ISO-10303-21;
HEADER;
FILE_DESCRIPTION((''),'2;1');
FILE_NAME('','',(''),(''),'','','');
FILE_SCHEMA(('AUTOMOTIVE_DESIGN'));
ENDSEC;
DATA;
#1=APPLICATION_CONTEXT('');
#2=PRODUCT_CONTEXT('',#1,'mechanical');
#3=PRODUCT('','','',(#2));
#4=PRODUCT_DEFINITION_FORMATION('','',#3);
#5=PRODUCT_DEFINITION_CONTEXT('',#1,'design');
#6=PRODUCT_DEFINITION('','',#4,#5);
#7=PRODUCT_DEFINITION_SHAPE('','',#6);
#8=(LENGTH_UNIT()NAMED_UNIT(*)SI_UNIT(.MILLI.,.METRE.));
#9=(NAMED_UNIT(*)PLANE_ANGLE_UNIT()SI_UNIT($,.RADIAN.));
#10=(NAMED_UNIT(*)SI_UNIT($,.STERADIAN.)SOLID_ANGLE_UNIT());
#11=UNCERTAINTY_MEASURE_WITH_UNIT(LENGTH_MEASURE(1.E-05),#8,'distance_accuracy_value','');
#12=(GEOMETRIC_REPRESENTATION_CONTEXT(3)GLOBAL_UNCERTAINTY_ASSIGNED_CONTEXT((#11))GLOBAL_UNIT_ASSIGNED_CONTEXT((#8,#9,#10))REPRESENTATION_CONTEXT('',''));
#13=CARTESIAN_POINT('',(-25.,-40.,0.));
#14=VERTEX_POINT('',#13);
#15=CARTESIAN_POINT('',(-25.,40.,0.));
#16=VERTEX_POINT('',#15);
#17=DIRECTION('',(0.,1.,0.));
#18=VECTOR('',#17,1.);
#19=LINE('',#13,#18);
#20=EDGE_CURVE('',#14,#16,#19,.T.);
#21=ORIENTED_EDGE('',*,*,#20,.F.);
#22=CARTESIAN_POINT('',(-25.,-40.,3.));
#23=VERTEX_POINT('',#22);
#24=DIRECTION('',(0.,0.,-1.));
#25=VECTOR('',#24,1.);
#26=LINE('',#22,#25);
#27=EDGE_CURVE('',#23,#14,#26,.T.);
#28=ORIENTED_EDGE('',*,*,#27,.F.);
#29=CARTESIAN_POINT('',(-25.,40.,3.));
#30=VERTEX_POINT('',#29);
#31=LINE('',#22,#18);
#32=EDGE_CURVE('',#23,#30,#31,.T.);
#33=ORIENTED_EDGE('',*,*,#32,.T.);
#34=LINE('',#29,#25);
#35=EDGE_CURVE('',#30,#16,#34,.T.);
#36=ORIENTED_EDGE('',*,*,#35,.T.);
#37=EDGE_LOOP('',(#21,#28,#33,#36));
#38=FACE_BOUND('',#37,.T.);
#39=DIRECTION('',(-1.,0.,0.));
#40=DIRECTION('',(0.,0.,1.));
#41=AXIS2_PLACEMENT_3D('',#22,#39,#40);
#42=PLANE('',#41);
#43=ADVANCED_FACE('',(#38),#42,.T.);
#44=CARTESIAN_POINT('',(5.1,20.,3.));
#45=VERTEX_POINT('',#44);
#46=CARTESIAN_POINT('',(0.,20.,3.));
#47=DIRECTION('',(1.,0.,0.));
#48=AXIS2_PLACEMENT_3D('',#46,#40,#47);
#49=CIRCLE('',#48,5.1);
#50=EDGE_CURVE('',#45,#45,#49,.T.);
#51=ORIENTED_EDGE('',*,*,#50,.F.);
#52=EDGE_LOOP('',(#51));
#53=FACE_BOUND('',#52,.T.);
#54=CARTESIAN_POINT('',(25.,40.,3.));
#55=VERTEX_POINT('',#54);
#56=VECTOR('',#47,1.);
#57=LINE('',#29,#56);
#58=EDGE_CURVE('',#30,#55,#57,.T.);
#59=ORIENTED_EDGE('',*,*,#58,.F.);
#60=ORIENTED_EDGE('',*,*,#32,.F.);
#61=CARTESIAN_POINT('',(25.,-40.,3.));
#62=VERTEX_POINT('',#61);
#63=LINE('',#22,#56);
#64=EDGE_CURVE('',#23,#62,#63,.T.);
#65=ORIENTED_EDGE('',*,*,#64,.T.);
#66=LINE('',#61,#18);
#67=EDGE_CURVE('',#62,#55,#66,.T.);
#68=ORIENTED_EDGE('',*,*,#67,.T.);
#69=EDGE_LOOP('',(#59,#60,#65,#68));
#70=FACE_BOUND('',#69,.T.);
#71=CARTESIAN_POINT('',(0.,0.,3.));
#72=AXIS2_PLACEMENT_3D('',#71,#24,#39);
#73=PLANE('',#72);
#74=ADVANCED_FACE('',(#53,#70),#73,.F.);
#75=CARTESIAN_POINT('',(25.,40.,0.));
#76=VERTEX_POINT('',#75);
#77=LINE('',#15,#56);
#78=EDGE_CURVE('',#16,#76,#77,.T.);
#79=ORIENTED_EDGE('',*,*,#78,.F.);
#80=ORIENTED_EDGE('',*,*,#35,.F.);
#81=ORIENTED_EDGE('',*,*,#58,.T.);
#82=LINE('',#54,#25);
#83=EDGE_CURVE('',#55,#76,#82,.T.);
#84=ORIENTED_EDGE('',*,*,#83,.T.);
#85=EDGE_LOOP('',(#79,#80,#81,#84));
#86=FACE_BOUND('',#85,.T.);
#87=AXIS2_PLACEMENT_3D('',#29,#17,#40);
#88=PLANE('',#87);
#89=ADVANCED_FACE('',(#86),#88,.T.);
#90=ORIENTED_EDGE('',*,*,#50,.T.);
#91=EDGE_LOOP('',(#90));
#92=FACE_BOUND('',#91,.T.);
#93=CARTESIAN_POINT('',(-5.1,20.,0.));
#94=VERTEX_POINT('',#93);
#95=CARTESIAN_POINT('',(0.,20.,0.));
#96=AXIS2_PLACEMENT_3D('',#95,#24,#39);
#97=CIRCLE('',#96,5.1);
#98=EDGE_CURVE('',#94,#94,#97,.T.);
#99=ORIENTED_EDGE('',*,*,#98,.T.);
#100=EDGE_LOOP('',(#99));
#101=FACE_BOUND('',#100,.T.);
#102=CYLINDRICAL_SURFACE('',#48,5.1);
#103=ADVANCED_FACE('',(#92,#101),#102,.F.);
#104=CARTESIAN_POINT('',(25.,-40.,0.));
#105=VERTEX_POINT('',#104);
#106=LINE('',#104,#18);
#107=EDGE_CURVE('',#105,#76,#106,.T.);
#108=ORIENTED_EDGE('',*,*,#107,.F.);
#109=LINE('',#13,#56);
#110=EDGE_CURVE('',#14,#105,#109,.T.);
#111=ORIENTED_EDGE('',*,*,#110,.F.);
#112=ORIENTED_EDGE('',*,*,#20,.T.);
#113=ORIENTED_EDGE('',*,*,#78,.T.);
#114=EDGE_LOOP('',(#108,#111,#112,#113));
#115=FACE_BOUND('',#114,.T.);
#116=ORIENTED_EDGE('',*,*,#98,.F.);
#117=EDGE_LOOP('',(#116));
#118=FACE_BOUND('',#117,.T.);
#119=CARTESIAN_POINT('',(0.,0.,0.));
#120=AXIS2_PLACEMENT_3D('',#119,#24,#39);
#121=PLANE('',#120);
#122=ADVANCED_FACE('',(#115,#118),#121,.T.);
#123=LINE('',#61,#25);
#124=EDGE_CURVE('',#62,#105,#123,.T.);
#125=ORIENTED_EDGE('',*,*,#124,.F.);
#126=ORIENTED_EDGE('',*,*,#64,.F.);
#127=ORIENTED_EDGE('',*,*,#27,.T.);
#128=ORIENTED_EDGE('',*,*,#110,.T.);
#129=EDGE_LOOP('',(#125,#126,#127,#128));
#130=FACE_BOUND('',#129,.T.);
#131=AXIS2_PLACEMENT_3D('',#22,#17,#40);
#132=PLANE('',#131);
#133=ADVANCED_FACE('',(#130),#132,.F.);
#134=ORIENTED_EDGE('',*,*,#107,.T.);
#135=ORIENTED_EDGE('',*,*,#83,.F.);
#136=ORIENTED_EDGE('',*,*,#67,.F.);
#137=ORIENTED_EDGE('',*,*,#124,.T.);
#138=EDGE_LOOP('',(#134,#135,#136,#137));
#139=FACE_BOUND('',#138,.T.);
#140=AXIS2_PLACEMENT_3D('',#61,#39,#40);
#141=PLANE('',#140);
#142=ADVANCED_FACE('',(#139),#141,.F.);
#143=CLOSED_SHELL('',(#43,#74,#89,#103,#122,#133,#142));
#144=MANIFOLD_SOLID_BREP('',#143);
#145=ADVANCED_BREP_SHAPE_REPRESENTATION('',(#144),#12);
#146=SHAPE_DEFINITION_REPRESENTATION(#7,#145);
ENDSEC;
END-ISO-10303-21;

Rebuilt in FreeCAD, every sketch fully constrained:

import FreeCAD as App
import Part
import Sketcher


def add_polygon(sketch, points):
    """Adds a closed chain of lines whose ends are joined by coincident constraints."""
    first, n = sketch.GeometryCount, len(points)
    for a, b in zip(points, points[1:] + points[:1]):
        sketch.addGeometry(Part.LineSegment(App.Vector(*a, 0), App.Vector(*b, 0)), False)
    for i in range(n):
        sketch.addConstraint(Sketcher.Constraint("Coincident", first + i, 2, first + (i + 1) % n, 1))

doc = App.newDocument("Part")
body = doc.addObject("PartDesign::Body", "Body")

sketch1 = body.newObject("Sketcher::SketchObject", "Sketch")
sketch1.AttachmentSupport = (doc.getObject("XY_Plane"), [""])
sketch1.MapMode = "FlatFace"
add_polygon(sketch1, [(-25, 40), (-25, -40), (25, -40), (25, 40)])
sketch1.addConstraint(Sketcher.Constraint("Vertical", 0))
sketch1.addConstraint(Sketcher.Constraint("Horizontal", 1))
sketch1.addConstraint(Sketcher.Constraint("Vertical", 2))
sketch1.addConstraint(Sketcher.Constraint("Horizontal", 3))
sketch1.addConstraint(Sketcher.Constraint("Symmetric", 0, 2, 2, 2, -1, 1))
sketch1.addConstraint(Sketcher.Constraint("DistanceX", 1, 1, 1, 2, 50.0))
sketch1.addConstraint(Sketcher.Constraint("DistanceY", 0, 2, 0, 1, 80.0))
pad1 = body.newObject("PartDesign::Pad", "Pad")
pad1.Profile = sketch1
pad1.Length = 3

sketch2 = body.newObject("Sketcher::SketchObject", "Sketch001")
sketch2.AttachmentSupport = (doc.getObject("XY_Plane"), [""])
sketch2.MapMode = "FlatFace"
sketch2.AttachmentOffset = App.Placement(App.Vector(0, 0, 3), App.Rotation())
sketch2.addGeometry(Part.Circle(App.Vector(0, 20, 0), App.Vector(0, 0, 1), 5), False)
sketch2.addConstraint(Sketcher.Constraint("PointOnObject", 0, 3, -2))
sketch2.addConstraint(Sketcher.Constraint("Diameter", 0, 10.2))
sketch2.addConstraint(Sketcher.Constraint("DistanceY", -1, 1, 0, 3, 20.0))
doc.recompute()
hole = body.newObject("PartDesign::Hole", "Hole")
hole.Profile = sketch2
hole.ThreadType = "None"
hole.Diameter = 10.2
hole.DepthType = "Dimension"
hole.Depth = 32.75
hole.DrillPoint = "Angled"
hole.DrillPointAngle = 118

doc.recompute()
